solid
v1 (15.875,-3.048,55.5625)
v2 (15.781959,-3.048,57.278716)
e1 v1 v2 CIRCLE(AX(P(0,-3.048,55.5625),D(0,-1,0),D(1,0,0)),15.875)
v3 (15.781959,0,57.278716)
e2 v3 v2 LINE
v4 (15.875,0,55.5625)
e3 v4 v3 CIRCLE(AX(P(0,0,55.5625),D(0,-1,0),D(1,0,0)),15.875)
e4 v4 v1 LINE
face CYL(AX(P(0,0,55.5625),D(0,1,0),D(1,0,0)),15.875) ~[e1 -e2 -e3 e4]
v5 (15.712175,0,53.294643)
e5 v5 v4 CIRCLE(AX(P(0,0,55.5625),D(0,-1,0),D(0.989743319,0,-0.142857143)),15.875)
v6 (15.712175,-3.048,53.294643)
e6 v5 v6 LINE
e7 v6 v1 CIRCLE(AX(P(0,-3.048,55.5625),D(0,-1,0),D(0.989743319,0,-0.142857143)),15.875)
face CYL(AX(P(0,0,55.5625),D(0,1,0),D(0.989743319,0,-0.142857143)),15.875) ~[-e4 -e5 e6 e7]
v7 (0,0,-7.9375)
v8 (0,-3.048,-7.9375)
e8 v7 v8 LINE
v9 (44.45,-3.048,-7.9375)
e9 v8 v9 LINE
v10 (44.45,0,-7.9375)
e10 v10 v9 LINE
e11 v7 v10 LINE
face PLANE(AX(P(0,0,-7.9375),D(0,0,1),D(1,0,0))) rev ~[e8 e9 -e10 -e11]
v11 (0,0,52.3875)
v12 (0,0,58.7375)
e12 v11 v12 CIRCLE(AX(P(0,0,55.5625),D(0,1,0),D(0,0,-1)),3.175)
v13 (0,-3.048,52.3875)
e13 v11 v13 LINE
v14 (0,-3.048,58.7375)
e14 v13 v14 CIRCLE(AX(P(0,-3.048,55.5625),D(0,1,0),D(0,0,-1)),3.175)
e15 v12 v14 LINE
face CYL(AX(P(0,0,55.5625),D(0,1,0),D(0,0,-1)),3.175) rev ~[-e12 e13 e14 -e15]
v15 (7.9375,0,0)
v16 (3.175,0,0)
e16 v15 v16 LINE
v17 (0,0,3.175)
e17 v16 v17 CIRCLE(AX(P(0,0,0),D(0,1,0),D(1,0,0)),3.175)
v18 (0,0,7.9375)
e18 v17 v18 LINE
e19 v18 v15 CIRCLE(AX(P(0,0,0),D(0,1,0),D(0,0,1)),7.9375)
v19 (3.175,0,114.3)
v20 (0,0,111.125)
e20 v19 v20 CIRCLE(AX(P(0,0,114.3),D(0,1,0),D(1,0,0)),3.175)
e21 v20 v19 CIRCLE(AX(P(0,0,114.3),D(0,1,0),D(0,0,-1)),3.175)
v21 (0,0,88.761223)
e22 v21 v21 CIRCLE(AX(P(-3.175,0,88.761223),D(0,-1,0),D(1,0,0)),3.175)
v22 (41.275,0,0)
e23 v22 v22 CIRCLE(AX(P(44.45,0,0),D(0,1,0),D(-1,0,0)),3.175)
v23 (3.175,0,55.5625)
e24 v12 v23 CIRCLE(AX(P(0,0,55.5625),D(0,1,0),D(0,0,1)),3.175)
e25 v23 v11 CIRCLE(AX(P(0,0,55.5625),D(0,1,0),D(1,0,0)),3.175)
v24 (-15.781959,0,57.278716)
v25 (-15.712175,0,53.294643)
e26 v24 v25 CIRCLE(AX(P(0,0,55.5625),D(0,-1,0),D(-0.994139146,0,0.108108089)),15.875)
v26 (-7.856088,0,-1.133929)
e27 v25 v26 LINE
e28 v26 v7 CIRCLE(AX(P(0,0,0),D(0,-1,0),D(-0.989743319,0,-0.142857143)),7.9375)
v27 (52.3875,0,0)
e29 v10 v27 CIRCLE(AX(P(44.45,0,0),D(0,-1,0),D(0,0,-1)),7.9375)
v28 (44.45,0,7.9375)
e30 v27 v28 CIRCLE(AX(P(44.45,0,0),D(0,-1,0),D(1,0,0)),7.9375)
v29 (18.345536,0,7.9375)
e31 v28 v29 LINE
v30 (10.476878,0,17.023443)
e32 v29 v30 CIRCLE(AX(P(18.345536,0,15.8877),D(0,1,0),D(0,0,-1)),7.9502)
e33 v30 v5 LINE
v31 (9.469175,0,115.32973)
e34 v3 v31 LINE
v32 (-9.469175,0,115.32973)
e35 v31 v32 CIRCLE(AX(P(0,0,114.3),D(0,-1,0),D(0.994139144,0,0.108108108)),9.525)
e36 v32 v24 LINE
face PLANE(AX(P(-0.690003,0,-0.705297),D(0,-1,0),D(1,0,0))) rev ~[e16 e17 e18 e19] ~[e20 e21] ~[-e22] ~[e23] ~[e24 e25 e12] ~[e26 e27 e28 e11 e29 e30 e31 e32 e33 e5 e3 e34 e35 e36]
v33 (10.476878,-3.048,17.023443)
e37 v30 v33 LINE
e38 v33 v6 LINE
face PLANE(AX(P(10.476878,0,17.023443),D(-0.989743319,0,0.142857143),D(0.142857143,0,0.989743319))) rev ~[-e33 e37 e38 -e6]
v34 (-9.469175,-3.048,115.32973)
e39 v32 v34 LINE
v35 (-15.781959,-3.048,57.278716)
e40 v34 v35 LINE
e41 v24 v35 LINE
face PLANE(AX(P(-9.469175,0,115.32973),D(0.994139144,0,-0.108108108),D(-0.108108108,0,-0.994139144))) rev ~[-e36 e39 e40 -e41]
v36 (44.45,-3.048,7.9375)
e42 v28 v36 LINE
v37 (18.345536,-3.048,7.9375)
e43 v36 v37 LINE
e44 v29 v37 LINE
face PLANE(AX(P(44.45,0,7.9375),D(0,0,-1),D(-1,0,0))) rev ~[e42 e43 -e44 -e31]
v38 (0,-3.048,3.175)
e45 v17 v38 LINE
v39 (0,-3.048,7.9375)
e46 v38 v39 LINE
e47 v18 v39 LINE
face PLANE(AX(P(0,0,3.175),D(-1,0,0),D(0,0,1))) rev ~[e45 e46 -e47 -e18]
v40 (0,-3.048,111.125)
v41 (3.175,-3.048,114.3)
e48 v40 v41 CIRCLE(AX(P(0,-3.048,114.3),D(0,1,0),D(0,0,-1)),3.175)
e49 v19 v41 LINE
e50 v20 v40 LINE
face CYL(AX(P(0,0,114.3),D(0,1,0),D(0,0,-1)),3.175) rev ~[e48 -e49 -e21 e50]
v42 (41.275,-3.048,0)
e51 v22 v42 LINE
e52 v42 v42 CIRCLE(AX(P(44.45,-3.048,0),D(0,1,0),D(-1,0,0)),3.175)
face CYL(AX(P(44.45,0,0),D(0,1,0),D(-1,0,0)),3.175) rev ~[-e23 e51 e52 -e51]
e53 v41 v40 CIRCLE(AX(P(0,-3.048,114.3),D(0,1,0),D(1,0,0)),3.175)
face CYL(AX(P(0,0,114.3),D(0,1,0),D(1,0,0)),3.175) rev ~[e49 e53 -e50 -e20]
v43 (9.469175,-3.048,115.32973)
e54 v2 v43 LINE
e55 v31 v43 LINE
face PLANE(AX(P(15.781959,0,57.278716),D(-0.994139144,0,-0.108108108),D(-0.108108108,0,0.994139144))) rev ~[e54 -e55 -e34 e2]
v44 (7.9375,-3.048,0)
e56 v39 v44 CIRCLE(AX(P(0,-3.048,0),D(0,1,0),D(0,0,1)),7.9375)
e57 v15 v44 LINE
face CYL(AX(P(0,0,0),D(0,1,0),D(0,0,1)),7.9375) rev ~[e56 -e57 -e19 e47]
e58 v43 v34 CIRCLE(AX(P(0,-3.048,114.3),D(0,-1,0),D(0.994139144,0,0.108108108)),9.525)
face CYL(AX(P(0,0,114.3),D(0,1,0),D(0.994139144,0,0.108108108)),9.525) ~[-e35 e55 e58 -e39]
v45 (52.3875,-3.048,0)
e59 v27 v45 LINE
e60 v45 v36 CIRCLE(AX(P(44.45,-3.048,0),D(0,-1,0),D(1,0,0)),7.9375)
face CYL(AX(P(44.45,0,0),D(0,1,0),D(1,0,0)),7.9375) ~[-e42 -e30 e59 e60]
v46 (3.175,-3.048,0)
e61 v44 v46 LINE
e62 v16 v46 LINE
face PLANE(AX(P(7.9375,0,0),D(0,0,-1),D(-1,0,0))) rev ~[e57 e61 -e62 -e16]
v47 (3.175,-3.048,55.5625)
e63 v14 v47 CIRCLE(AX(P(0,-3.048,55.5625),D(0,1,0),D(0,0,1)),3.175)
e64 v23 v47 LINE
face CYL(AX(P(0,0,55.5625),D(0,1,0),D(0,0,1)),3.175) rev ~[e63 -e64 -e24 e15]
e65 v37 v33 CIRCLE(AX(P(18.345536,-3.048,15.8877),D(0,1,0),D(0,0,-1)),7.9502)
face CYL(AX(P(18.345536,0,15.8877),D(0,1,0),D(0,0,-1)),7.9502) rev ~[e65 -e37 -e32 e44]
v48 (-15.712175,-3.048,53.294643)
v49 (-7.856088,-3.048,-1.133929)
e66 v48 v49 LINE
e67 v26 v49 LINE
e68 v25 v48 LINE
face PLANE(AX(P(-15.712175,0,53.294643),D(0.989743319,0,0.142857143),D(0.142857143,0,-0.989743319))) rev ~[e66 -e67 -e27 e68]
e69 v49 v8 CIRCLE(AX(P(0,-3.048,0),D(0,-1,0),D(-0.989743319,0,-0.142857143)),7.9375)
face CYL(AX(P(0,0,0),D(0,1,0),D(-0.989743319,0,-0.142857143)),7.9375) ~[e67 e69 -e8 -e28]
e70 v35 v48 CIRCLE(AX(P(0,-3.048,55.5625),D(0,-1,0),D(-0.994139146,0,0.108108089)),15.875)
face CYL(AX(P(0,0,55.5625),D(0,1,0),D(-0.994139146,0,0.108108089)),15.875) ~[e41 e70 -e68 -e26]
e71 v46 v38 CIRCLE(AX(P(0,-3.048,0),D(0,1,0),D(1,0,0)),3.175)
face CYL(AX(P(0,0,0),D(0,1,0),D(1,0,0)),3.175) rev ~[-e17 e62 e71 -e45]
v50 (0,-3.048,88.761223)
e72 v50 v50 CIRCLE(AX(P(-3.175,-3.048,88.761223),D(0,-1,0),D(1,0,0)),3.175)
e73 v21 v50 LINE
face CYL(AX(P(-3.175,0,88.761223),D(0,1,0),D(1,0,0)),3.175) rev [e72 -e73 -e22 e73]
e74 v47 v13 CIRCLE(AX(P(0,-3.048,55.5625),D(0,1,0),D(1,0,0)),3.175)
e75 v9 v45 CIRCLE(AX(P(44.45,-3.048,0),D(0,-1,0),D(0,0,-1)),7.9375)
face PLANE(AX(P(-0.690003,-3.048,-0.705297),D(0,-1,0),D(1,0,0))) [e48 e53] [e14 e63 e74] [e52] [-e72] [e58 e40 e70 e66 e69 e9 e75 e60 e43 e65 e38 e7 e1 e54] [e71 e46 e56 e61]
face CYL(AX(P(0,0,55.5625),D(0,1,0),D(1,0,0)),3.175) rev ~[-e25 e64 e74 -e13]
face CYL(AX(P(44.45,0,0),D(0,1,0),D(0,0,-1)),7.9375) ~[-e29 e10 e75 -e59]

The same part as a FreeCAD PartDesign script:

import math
import FreeCAD as App
import Part
import Sketcher

V = App.Vector
Q = App.Units.Quantity

doc = App.newDocument("Part")
body = doc.addObject("PartDesign::Body", "Body")

# Sketch on XZ plane
sketch1 = doc.addObject("Sketcher::SketchObject", "Sketch")
body.addObject(sketch1)
sketch1.AttachmentSupport = (doc.XZ_Plane, [""])
sketch1.MapMode = "FlatFace"
sketch1.addGeometry([
    Part.ArcOfCircle(Part.Circle(V(0, 55.6, 0), V(0, 0, 1), 15.9), math.radians(173.79), math.radians(188.21)),  # 0
    Part.LineSegment(V(-15.7, 53.3, 0), V(-7.9, -1.1, 0)),  # 1
    Part.ArcOfCircle(Part.Circle(V(0, 0, 0), V(0, 0, 1), 7.9), math.radians(-172), math.radians(-90)),  # 2
    Part.LineSegment(V(0, -7.9, 0), V(44.5, -7.9, 0)),  # 3
    Part.ArcOfCircle(Part.Circle(V(44.5, 0, 0), V(0, 0, 1), 7.9), math.radians(-90), math.radians(0)),  # 4
    Part.ArcOfCircle(Part.Circle(V(44.5, 0, 0), V(0, 0, 1), 7.9), math.radians(0), math.radians(90)),  # 5
    Part.LineSegment(V(44.5, 7.9, 0), V(18.3, 7.9, 0)),  # 6
    Part.ArcOfCircle(Part.Circle(V(18.3, 15.9, 0), V(0, 0, 1), 8), math.radians(172), math.radians(270)),  # 7
    Part.LineSegment(V(10.5, 17, 0), V(15.7, 53.3, 0)),  # 8
    Part.ArcOfCircle(Part.Circle(V(0, 55.6, 0), V(0, 0, 1), 15.9), math.radians(-8.21), math.radians(0)),  # 9
    Part.ArcOfCircle(Part.Circle(V(0, 55.6, 0), V(0, 0, 1), 15.9), math.radians(0), math.radians(6.21)),  # 10
    Part.LineSegment(V(15.8, 57.3, 0), V(9.5, 115.3, 0)),  # 11
    Part.ArcOfCircle(Part.Circle(V(0, 114.3, 0), V(0, 0, 1), 9.5), math.radians(6), math.radians(174)),  # 12
    Part.LineSegment(V(-9.5, 115.3, 0), V(-15.8, 57.3, 0)),  # 13
    Part.ArcOfCircle(Part.Circle(V(0, 0, 0), V(0, 0, 1), 7.9), math.radians(0), math.radians(90)),  # 14
    Part.LineSegment(V(7.9, 0, 0), V(3.2, 0, 0)),  # 15
    Part.ArcOfCircle(Part.Circle(V(0, 0, 0), V(0, 0, 1), 3.2), math.radians(90), math.radians(360)),  # 16
    Part.LineSegment(V(0, 3.2, 0), V(0, 7.9, 0)),  # 17
    Part.ArcOfCircle(Part.Circle(V(0, 55.6, 0), V(0, 0, 1), 3.2), math.radians(90), math.radians(270)),  # 18
    Part.ArcOfCircle(Part.Circle(V(0, 55.6, 0), V(0, 0, 1), 3.2), math.radians(0), math.radians(90)),  # 19
    Part.ArcOfCircle(Part.Circle(V(0, 55.6, 0), V(0, 0, 1), 3.2), math.radians(-90), math.radians(0)),  # 20
    Part.Circle(V(44.5, 0, 0), V(0, 0, 1), 3.2),  # 21
    Part.Circle(V(-3.2, 88.8, 0), V(0, 0, 1), 3.2),  # 22
    Part.ArcOfCircle(Part.Circle(V(0, 114.3, 0), V(0, 0, 1), 3.2), math.radians(0), math.radians(270)),  # 23
    Part.ArcOfCircle(Part.Circle(V(0, 114.3, 0), V(0, 0, 1), 3.2), math.radians(-90), math.radians(0)),  # 24
], False)
sketch1.addConstraint([
    Sketcher.Constraint("Tangent", 0, 2, 1, 1),
    Sketcher.Constraint("Tangent", 1, 2, 2, 1),
    Sketcher.Constraint("Tangent", 2, 2, 3, 1),
    Sketcher.Constraint("Tangent", 3, 2, 4, 1),
    Sketcher.Constraint("Tangent", 4, 2, 5, 1),
    Sketcher.Constraint("Tangent", 5, 2, 6, 1),
    Sketcher.Constraint("Tangent", 6, 2, 7, 2),
    Sketcher.Constraint("Tangent", 7, 1, 8, 1),
    Sketcher.Constraint("Tangent", 8, 2, 9, 1),
    Sketcher.Constraint("Tangent", 9, 2, 10, 1),
    Sketcher.Constraint("Tangent", 10, 2, 11, 1),
    Sketcher.Constraint("Tangent", 11, 2, 12, 1),
    Sketcher.Constraint("Tangent", 12, 2, 13, 1),
    Sketcher.Constraint("Tangent", 13, 2, 0, 1),
    Sketcher.Constraint("Coincident", 14, 1, 15, 1),
    Sketcher.Constraint("Coincident", 15, 2, 16, 2),
    Sketcher.Constraint("Coincident", 16, 1, 17, 1),
    Sketcher.Constraint("Coincident", 17, 2, 14, 2),
    Sketcher.Constraint("Tangent", 18, 1, 19, 2),
    Sketcher.Constraint("Tangent", 19, 1, 20, 2),
    Sketcher.Constraint("Tangent", 20, 1, 18, 2),
    Sketcher.Constraint("Tangent", 23, 1, 24, 2),
    Sketcher.Constraint("Coincident", 24, 1, 23, 2),
    Sketcher.Constraint("Horizontal", 3),
    Sketcher.Constraint("Horizontal", 6),
    Sketcher.Constraint("Horizontal", 15),
    Sketcher.Constraint("Vertical", 17),
    Sketcher.Constraint("Coincident", 2, 3, -1, 1),
    Sketcher.Constraint("Coincident", 14, 3, -1, 1),
    Sketcher.Constraint("Coincident", 16, 3, -1, 1),
    Sketcher.Constraint("Coincident", 9, 3, 0, 3),
    Sketcher.Constraint("Coincident", 18, 3, 0, 3),
    Sketcher.Constraint("Coincident", 21, 3, 4, 3),
    Sketcher.Constraint("Coincident", 23, 3, 12, 3),
    Sketcher.Constraint("Equal", 2, 4),
    Sketcher.Constraint("Equal", 4, 5),
    Sketcher.Constraint("Equal", 0, 9),
    Sketcher.Constraint("Equal", 9, 10),
    Sketcher.Constraint("Equal", 5, 14),
    Sketcher.Constraint("Equal", 16, 18),
    Sketcher.Constraint("Equal", 20, 21),
    Sketcher.Constraint("Equal", 21, 22),
    Sketcher.Constraint("Equal", 22, 23),
    Sketcher.Constraint("Symmetric", 0, 2, 8, 2, -2),
    Sketcher.Constraint("PointOnObject", 12, 3, -2),
    Sketcher.Constraint("PointOnObject", 4, 2, -1),
    Sketcher.Constraint("PointOnObject", 14, 1, -1),
    Sketcher.Constraint("PointOnObject", 16, 1, -2),
    Sketcher.Constraint("PointOnObject", 18, 1, -2),
    Sketcher.Constraint("PointOnObject", 20, 1, -2),
    Sketcher.Constraint("PointOnObject", 24, 1, -2),
    Sketcher.Constraint("Horizontal", 20, 3, 9, 2),
    Sketcher.Constraint("Horizontal", 9, 2, 19, 1),
    Sketcher.Constraint("Horizontal", 24, 3, 23, 1),
    Sketcher.Constraint("Diameter", 21, Q("0.25 in")),
    Sketcher.Constraint("Radius", 0, Q("0.625 in")),
    Sketcher.Constraint("Radius", 2, Q("0.3125 in")),
    Sketcher.Constraint("Radius", 7, Q("0.313 in")),
    Sketcher.Constraint("Radius", 12, Q("0.375 in")),
    Sketcher.Constraint("DistanceX", 3, 1, 3, 2, Q("1.75 in")),
    Sketcher.Constraint("DistanceY", -1, 1, 12, 3, Q("4.5 in")),
    Sketcher.Constraint("DistanceY", -1, 1, 0, 3, Q("2.1875 in")),
    Sketcher.Constraint("DistanceX", 22, 3, -1, 1, Q("0.125 in")),
    Sketcher.Constraint("DistanceY", -1, 1, 22, 3, Q("88.761223 mm")),
])
pad1 = doc.addObject("PartDesign::Pad", "Pad")
body.addObject(pad1)
pad1.Profile = sketch1
pad1.Length = Q("0.12 in")

doc.recompute()
